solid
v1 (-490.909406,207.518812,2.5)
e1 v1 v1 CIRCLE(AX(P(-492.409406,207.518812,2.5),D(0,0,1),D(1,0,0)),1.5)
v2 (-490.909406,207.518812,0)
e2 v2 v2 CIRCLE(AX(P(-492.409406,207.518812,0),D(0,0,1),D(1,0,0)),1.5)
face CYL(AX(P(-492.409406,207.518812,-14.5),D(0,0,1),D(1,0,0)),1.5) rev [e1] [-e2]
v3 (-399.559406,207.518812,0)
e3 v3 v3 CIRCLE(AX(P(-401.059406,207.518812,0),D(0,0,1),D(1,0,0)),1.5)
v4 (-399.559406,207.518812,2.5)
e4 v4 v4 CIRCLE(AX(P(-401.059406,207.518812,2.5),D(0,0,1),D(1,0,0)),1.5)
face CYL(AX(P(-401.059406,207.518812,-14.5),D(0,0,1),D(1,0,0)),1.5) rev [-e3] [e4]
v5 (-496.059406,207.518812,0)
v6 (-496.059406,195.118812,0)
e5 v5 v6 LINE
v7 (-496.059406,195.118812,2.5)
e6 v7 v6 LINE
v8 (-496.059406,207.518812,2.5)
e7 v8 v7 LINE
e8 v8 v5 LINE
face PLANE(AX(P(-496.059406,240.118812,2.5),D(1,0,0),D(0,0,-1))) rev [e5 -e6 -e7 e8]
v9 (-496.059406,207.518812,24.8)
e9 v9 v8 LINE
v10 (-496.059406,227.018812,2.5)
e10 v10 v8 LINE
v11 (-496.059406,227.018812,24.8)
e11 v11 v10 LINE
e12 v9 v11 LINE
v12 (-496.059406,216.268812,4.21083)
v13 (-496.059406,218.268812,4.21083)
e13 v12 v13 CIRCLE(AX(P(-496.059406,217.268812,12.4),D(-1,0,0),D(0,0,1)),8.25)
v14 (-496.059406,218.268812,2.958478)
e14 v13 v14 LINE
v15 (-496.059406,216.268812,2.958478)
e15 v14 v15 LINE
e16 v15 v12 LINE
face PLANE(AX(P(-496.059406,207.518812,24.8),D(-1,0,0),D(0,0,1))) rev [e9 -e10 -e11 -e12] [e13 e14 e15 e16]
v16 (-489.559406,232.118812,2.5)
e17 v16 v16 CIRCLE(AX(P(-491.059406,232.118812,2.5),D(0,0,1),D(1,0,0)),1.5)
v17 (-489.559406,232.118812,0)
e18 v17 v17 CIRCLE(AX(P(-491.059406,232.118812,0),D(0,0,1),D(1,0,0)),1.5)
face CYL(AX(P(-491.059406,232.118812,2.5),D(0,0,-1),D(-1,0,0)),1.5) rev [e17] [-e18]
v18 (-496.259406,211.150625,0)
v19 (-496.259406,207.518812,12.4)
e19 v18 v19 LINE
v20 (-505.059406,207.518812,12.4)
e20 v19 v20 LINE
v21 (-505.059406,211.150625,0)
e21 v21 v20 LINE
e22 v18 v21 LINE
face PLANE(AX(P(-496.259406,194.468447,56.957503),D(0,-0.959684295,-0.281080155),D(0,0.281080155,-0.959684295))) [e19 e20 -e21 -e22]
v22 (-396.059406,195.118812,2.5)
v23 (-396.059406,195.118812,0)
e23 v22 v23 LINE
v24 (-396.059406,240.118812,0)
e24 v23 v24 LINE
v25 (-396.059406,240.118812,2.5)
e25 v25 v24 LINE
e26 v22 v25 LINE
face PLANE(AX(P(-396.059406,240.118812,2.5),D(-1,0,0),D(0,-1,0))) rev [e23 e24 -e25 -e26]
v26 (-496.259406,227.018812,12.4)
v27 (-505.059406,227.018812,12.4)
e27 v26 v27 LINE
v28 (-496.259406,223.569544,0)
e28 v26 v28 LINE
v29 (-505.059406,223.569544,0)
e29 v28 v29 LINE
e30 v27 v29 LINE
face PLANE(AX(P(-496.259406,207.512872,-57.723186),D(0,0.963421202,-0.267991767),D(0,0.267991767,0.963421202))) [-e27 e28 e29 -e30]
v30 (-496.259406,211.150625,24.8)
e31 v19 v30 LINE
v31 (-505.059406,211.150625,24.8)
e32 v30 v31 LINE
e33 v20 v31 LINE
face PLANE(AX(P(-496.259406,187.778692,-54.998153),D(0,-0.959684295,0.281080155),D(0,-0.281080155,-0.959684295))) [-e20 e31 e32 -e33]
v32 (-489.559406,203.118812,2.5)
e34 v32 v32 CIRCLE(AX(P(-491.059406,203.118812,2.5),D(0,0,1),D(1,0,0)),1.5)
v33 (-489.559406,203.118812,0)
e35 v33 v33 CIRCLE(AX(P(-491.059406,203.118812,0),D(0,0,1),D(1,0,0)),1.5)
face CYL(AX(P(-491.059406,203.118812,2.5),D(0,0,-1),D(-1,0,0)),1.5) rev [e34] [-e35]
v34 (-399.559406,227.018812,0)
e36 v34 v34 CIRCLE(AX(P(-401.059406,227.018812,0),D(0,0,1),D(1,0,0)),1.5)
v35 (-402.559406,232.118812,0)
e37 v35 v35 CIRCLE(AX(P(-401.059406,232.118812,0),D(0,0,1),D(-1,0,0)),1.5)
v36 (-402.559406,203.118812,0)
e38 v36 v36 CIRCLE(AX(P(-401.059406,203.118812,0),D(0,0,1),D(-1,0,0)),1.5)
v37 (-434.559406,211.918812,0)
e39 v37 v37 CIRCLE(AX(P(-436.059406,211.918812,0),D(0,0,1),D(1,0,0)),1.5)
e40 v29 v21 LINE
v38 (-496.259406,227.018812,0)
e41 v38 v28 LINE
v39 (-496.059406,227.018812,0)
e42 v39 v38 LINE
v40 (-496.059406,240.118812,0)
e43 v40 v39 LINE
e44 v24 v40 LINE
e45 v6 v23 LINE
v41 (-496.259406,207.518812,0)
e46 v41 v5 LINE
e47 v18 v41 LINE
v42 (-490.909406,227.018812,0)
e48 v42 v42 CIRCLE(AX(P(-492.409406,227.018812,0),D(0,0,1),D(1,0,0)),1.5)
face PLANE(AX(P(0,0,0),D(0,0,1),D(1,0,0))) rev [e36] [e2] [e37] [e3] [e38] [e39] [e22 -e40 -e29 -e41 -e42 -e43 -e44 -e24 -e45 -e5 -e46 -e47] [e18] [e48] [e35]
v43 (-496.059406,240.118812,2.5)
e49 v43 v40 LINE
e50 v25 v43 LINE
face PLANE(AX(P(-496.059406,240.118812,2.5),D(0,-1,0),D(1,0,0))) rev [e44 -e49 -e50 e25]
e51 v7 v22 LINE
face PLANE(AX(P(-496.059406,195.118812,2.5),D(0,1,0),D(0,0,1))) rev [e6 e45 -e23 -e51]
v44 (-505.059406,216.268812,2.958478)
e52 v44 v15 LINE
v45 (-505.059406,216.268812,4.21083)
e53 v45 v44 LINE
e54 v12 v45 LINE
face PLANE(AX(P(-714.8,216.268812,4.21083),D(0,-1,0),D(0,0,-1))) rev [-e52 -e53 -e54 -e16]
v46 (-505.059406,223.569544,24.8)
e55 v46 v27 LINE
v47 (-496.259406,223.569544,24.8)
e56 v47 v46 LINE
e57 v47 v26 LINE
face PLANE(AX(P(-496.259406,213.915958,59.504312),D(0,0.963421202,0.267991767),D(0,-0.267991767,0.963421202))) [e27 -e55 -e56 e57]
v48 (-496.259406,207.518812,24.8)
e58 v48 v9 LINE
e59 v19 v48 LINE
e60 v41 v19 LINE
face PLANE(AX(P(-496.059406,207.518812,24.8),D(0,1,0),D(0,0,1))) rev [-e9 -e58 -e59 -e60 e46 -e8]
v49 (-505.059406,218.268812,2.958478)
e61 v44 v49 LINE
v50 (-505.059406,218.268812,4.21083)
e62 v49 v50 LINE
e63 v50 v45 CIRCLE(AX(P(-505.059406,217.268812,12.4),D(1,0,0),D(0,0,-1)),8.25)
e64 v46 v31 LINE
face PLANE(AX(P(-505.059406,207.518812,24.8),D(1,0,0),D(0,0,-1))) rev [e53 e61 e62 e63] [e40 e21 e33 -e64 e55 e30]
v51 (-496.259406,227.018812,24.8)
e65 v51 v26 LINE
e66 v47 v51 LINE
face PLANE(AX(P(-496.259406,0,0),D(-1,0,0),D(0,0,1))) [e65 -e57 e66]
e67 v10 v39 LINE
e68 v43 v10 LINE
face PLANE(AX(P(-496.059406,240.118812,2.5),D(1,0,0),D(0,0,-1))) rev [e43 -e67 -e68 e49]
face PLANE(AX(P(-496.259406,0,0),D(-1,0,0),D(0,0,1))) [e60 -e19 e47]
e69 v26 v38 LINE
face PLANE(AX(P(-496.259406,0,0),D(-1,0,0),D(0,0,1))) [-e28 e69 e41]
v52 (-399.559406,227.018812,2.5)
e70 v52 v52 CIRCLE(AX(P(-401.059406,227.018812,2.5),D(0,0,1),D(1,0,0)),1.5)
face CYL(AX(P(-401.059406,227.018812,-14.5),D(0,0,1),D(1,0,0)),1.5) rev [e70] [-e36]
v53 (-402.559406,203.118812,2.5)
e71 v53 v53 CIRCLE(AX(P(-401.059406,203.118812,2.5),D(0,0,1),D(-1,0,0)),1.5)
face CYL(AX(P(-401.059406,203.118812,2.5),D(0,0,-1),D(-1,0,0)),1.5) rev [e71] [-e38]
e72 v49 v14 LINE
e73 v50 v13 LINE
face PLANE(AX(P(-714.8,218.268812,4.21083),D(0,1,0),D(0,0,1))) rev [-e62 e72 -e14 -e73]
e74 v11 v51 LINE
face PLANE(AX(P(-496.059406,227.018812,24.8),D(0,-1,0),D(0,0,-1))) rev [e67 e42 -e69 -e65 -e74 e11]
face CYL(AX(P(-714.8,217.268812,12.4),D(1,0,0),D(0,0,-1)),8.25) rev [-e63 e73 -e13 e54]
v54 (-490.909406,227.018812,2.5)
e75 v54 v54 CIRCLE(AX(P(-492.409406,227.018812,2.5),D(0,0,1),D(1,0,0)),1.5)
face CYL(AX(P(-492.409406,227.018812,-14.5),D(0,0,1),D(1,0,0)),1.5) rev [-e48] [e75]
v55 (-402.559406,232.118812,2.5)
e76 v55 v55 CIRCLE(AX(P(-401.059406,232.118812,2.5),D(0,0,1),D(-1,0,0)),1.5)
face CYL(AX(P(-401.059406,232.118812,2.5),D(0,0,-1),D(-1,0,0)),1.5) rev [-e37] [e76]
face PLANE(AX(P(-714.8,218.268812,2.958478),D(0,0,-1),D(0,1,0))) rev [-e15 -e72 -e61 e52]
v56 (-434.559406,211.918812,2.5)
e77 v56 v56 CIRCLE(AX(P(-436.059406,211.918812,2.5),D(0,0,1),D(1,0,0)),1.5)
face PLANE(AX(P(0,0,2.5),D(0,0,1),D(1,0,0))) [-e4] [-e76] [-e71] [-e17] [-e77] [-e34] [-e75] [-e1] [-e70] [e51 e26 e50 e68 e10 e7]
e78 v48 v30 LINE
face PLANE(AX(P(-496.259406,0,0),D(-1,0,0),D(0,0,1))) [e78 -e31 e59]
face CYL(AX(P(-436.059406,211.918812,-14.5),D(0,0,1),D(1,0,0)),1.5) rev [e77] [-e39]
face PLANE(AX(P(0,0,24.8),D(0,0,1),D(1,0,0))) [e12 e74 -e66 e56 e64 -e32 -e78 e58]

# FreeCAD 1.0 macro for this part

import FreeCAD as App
import Part
import Sketcher
from FreeCAD import Vector
Q = App.Units.Quantity

doc = App.newDocument("Part")
params = doc.addObject("Spreadsheet::Sheet", "Params")
for row, (alias, value) in enumerate([
    ("sketch1_diameter", "3 mm"),
    ("sketch1_width", "100 mm"),
    ("sketch1_height", "45 mm"),
    ("pad1_length", "2.5 mm"),
    ("sketch2_diameter", "3 mm"),
    ("sketch3_width", "9 mm"),
    ("sketch3_height", "19.5 mm"),
    ("pad2_length", "24.8 mm"),
    ("sketch4_height", "12.4 mm"),
    ("pocket2_length", "8.8 mm"),
    ("sketch5_diameter", "16.5 mm"),
    ("pocket3_length", "714.8 mm"),
    ("sketch6_width", "2 mm"),
    ("pocket4_length", "714.8 mm"),
], start=1):
    params.set(f"A{row}", alias)
    params.set(f"B{row}", "=" + value)
    params.setAlias(f"B{row}", alias)

body = doc.addObject("PartDesign::Body", "Body")

# Sketch on XY plane
sketch1 = body.newObject("Sketcher::SketchObject", "Sketch")
sketch1.AttachmentSupport = (doc.getObject("XY_Plane"), [""])
sketch1.MapMode = "FlatFace"
sketch1.addGeometry([
    Part.LineSegment(Vector(-496.1, 240.1, 0), Vector(-496.1, 195.1, 0)),  # 0
    Part.LineSegment(Vector(-496.1, 195.1, 0), Vector(-396.1, 195.1, 0)),  # 1
    Part.LineSegment(Vector(-396.1, 195.1, 0), Vector(-396.1, 240.1, 0)),  # 2
    Part.LineSegment(Vector(-396.1, 240.1, 0), Vector(-496.1, 240.1, 0)),  # 3
    Part.Circle(Vector(-491.1, 203.1, 0), Vector(0, 0, 1), 1.5),  # 4
    Part.Circle(Vector(-401.1, 203.1, 0), Vector(0, 0, 1), 1.5),  # 5
    Part.Circle(Vector(-491.1, 232.1, 0), Vector(0, 0, 1), 1.5),  # 6
    Part.Circle(Vector(-401.1, 232.1, 0), Vector(0, 0, 1), 1.5),  # 7
], False)
sketch1.addConstraint([
    Sketcher.Constraint("Coincident", 0, 2, 1, 1),
    Sketcher.Constraint("Coincident", 1, 2, 2, 1),
    Sketcher.Constraint("Coincident", 2, 2, 3, 1),
    Sketcher.Constraint("Coincident", 3, 2, 0, 1),
    Sketcher.Constraint("Vertical", 0),
    Sketcher.Constraint("Horizontal", 1),
    Sketcher.Constraint("Vertical", 2),
    Sketcher.Constraint("Horizontal", 3),
    Sketcher.Constraint("Equal", 4, 5),
    Sketcher.Constraint("Equal", 5, 6),
    Sketcher.Constraint("Equal", 6, 7),
    Sketcher.Constraint("Horizontal", 4, 3, 5, 3),
    Sketcher.Constraint("Horizontal", 6, 3, 7, 3),
    Sketcher.Constraint("Vertical", 4, 3, 6, 3),
    Sketcher.Constraint("Vertical", 5, 3, 7, 3),
    Sketcher.Constraint("Diameter", 4, Q("3 mm")),
    Sketcher.Constraint("DistanceX", 1, 1, 1, 2, Q("100 mm")),
    Sketcher.Constraint("DistanceY", 0, 2, 0, 1, Q("45 mm")),
    Sketcher.Constraint("DistanceX", 4, 3, 5, 3, Q("90 mm")),
    Sketcher.Constraint("DistanceY", 4, 3, 6, 3, Q("29 mm")),
    Sketcher.Constraint("DistanceX", 0, 2, 4, 3, Q("5 mm")),
    Sketcher.Constraint("DistanceY", 0, 2, 4, 3, Q("8 mm")),
    Sketcher.Constraint("DistanceY", -1, 1, 4, 3, Q("203.118812 mm")),
    Sketcher.Constraint("DistanceX", 4, 3, -1, 1, Q("491.059406 mm")),
])
sketch1.setExpression("Constraints[15]", "Params.sketch1_diameter")
sketch1.setExpression("Constraints[16]", "Params.sketch1_width")
sketch1.setExpression("Constraints[17]", "Params.sketch1_height")
pad1 = body.newObject("PartDesign::Pad", "Pad")
pad1.Profile = sketch1
pad1.setExpression("Length", "Params.pad1_length")

# Sketch on XY plane
sketch2 = body.newObject("Sketcher::SketchObject", "Sketch001")
sketch2.AttachmentSupport = (doc.getObject("XY_Plane"), [""])
sketch2.MapMode = "FlatFace"
sketch2.AttachmentOffset = App.Placement(Vector(0, 0, 2.5), App.Rotation())
sketch2.addGeometry([
    Part.Circle(Vector(-436.1, 211.9, 0), Vector(0, 0, 1), 1.5),  # 0
    Part.Circle(Vector(-401.1, 227, 0), Vector(0, 0, 1), 1.5),  # 1
    Part.Circle(Vector(-401.1, 207.5, 0), Vector(0, 0, 1), 1.5),  # 2
    Part.Circle(Vector(-492.4, 207.5, 0), Vector(0, 0, 1), 1.5),  # 3
    Part.Circle(Vector(-492.4, 227, 0), Vector(0, 0, 1), 1.5),  # 4
], False)
sketch2.addConstraint([
    Sketcher.Constraint("Equal", 0, 1),
    Sketcher.Constraint("Equal", 1, 2),
    Sketcher.Constraint("Equal", 2, 3),
    Sketcher.Constraint("Equal", 3, 4),
    Sketcher.Constraint("Horizontal", 2, 3, 3, 3),
    Sketcher.Constraint("Horizontal", 1, 3, 4, 3),
    Sketcher.Constraint("Vertical", 1, 3, 2, 3),
    Sketcher.Constraint("Vertical", 3, 3, 4, 3),
    Sketcher.Constraint("Diameter", 0, Q("3 mm")),
    Sketcher.Constraint("DistanceX", 0, 3, 1, 3, Q("35 mm")),
    Sketcher.Constraint("DistanceY", 0, 3, 1, 3, Q("15.1 mm")),
    Sketcher.Constraint("DistanceY", 2, 3, 1, 3, Q("19.5 mm")),
    Sketcher.Constraint("DistanceX", 3, 3, 0, 3, Q("56.35 mm")),
    Sketcher.Constraint("DistanceY", -1, 1, 0, 3, Q("211.918812 mm")),
    Sketcher.Constraint("DistanceX", 0, 3, -1, 1, Q("436.059406 mm")),
])
sketch2.setExpression("Constraints[8]", "Params.sketch2_diameter")
pocket1 = body.newObject("PartDesign::Pocket", "Pocket")
pocket1.Profile = sketch2
pocket1.Type = "ThroughAll"
pocket1.Midplane = True

# Sketch on XY plane
sketch3 = body.newObject("Sketcher::SketchObject", "Sketch002")
sketch3.AttachmentSupport = (doc.getObject("XY_Plane"), [""])
sketch3.MapMode = "FlatFace"
sketch3.addGeometry([
    Part.LineSegment(Vector(-505, 227, 0), Vector(-505, 208, 0)),
    Part.LineSegment(Vector(-505, 208, 0), Vector(-496, 208, 0)),
    Part.LineSegment(Vector(-496, 208, 0), Vector(-496, 227, 0)),
    Part.LineSegment(Vector(-496, 227, 0), Vector(-505, 227, 0)),
], False)
sketch3.addConstraint([
    Sketcher.Constraint("Coincident", 0, 2, 1, 1),
    Sketcher.Constraint("Coincident", 1, 2, 2, 1),
    Sketcher.Constraint("Coincident", 2, 2, 3, 1),
    Sketcher.Constraint("Coincident", 3, 2, 0, 1),
    Sketcher.Constraint("Vertical", 0),
    Sketcher.Constraint("Horizontal", 1),
    Sketcher.Constraint("Vertical", 2),
    Sketcher.Constraint("Horizontal", 3),
    Sketcher.Constraint("DistanceX", 1, 1, 1, 2, Q("9 mm")),
    Sketcher.Constraint("DistanceY", 0, 2, 0, 1, Q("19.5 mm")),
    Sketcher.Constraint("DistanceY", -1, 1, 0, 2, Q("207.518812 mm")),
    Sketcher.Constraint("DistanceX", 0, 2, -1, 1, Q("505.059406 mm")),
])
sketch3.setExpression("Constraints[8]", "Params.sketch3_width")
sketch3.setExpression("Constraints[9]", "Params.sketch3_height")
pad2 = body.newObject("PartDesign::Pad", "Pad001")
pad2.Profile = sketch3
pad2.setExpression("Length", "Params.pad2_length")

# Sketch on YZ plane
sketch4 = body.newObject("Sketcher::SketchObject", "Sketch003")
sketch4.AttachmentSupport = (doc.getObject("YZ_Plane"), [""])
sketch4.MapMode = "FlatFace"
sketch4.AttachmentOffset = App.Placement(Vector(0, 0, -505.059406), App.Rotation())
sketch4.addGeometry([
    Part.LineSegment(Vector(223.6, 0, 0), Vector(227, 12.4, 0)),  # 0
    Part.LineSegment(Vector(227, 12.4, 0), Vector(227, 0, 0)),  # 1
    Part.LineSegment(Vector(227, 0, 0), Vector(223.6, 0, 0)),  # 2
    Part.LineSegment(Vector(227, 24.8, 0), Vector(227, 12.4, 0)),  # 3
    Part.LineSegment(Vector(227, 12.4, 0), Vector(223.6, 24.8, 0)),  # 4
    Part.LineSegment(Vector(223.6, 24.8, 0), Vector(227, 24.8, 0)),  # 5
    Part.LineSegment(Vector(211.2, 24.8, 0), Vector(207.5, 12.4, 0)),  # 6
    Part.LineSegment(Vector(207.5, 12.4, 0), Vector(207.5, 24.8, 0)),  # 7
    Part.LineSegment(Vector(207.5, 24.8, 0), Vector(211.2, 24.8, 0)),  # 8
    Part.LineSegment(Vector(207.5, 12.4, 0), Vector(211.2, 0, 0)),  # 9
    Part.LineSegment(Vector(211.2, 0, 0), Vector(207.5, 0, 0)),  # 10
    Part.LineSegment(Vector(207.5, 0, 0), Vector(207.5, 12.4, 0)),  # 11
], False)
sketch4.addConstraint([
    Sketcher.Constraint("Coincident", 0, 2, 1, 1),
    Sketcher.Constraint("Coincident", 1, 2, 2, 1),
    Sketcher.Constraint("Coincident", 2, 2, 0, 1),
    Sketcher.Constraint("Coincident", 3, 2, 4, 1),
    Sketcher.Constraint("Coincident", 4, 2, 5, 1),
    Sketcher.Constraint("Coincident", 5, 2, 3, 1),
    Sketcher.Constraint("Coincident", 6, 2, 7, 1),
    Sketcher.Constraint("Coincident", 7, 2, 8, 1),
    Sketcher.Constraint("Coincident", 8, 2, 6, 1),
    Sketcher.Constraint("Coincident", 9, 2, 10, 1),
    Sketcher.Constraint("Coincident", 10, 2, 11, 1),
    Sketcher.Constraint("Coincident", 11, 2, 9, 1),
    Sketcher.Constraint("Vertical", 1),
    Sketcher.Constraint("Horizontal", 2),
    Sketcher.Constraint("Vertical", 3),
    Sketcher.Constraint("Horizontal", 5),
    Sketcher.Constraint("Vertical", 7),
    Sketcher.Constraint("Horizontal", 8),
    Sketcher.Constraint("Horizontal", 10),
    Sketcher.Constraint("Vertical", 11),
    Sketcher.Constraint("Coincident", 3, 2, 0, 2),
    Sketcher.Constraint("Coincident", 11, 2, 6, 2),
    Sketcher.Constraint("PointOnObject", 1, 2, -1),
    Sketcher.Constraint("PointOnObject", 9, 2, -1),
    Sketcher.Constraint("Horizontal", 3, 2, 6, 2),
    Sketcher.Constraint("Horizontal", 5, 2, 7, 2),
    Sketcher.Constraint("Vertical", 2, 2, 4, 2),
    Sketcher.Constraint("Vertical", 8, 2, 9, 2),
    Sketcher.Constraint("Equal", 1, 3),
    Sketcher.Constraint("DistanceY", 1, 2, 1, 1, Q("12.4 mm")),
    Sketcher.Constraint("DistanceX", 6, 2, 0, 2, Q("19.5 mm")),
    Sketcher.Constraint("Distance", 0, Q("12.870798 mm")),
    Sketcher.Constraint("DistanceX", 8, 1, 8, 2, Q("3.631813 mm")),
    Sketcher.Constraint("DistanceX", -1, 1, 0, 2, Q("227.018812 mm")),
])
sketch4.setExpression("Constraints[29]", "Params.sketch4_height")
pocket2 = body.newObject("PartDesign::Pocket", "Pocket001")
pocket2.Profile = sketch4
pocket2.setExpression("Length", "Params.pocket2_length")
pocket2.Reversed = True

# Sketch on YZ plane
sketch5 = body.newObject("Sketcher::SketchObject", "Sketch004")
sketch5.AttachmentSupport = (doc.getObject("YZ_Plane"), [""])
sketch5.MapMode = "FlatFace"
sketch5.addGeometry(Part.Circle(Vector(217, 12, 0), Vector(0, 0, 1), 8), False)
sketch5.addConstraint([
    Sketcher.Constraint("Diameter", 0, Q("16.5 mm")),
    Sketcher.Constraint("DistanceY", -1, 1, 0, 3, Q("12.4 mm")),
    Sketcher.Constraint("DistanceX", -1, 1, 0, 3, Q("217.268812 mm")),
])
sketch5.setExpression("Constraints[0]", "Params.sketch5_diameter")
pocket3 = body.newObject("PartDesign::Pocket", "Pocket002")
pocket3.Profile = sketch5
pocket3.setExpression("Length", "Params.pocket3_length")

# Sketch on YZ plane
sketch6 = body.newObject("Sketcher::SketchObject", "Sketch005")
sketch6.AttachmentSupport = (doc.getObject("YZ_Plane"), [""])
sketch6.MapMode = "FlatFace"
sketch6.addGeometry([
    Part.LineSegment(Vector(218.3, 4.2, 0), Vector(216.3, 4.2, 0)),
    Part.LineSegment(Vector(216.3, 4.2, 0), Vector(216.3, 3, 0)),
    Part.LineSegment(Vector(216.3, 3, 0), Vector(218.3, 3, 0)),
    Part.LineSegment(Vector(218.3, 3, 0), Vector(218.3, 4.2, 0)),
], False)
sketch6.addConstraint([
    Sketcher.Constraint("Coincident", 0, 2, 1, 1),
    Sketcher.Constraint("Coincident", 1, 2, 2, 1),
    Sketcher.Constraint("Coincident", 2, 2, 3, 1),
    Sketcher.Constraint("Coincident", 3, 2, 0, 1),
    Sketcher.Constraint("Horizontal", 0),
    Sketcher.Constraint("Vertical", 1),
    Sketcher.Constraint("Horizontal", 2),
    Sketcher.Constraint("Vertical", 3),
    Sketcher.Constraint("DistanceX", 0, 2, 0, 1, Q("2 mm")),
    Sketcher.Constraint("DistanceY", 1, 2, 1, 1, Q("1.252353 mm")),
    Sketcher.Constraint("DistanceX", -1, 1, 0, 2, Q("216.268812 mm")),
    Sketcher.Constraint("DistanceY", -1, 1, 0, 2, Q("4.21083 mm")),
])
sketch6.setExpression("Constraints[8]", "Params.sketch6_width")
pocket4 = body.newObject("PartDesign::Pocket", "Pocket003")
pocket4.Profile = sketch6
pocket4.setExpression("Length", "Params.pocket4_length")

doc.recompute()
